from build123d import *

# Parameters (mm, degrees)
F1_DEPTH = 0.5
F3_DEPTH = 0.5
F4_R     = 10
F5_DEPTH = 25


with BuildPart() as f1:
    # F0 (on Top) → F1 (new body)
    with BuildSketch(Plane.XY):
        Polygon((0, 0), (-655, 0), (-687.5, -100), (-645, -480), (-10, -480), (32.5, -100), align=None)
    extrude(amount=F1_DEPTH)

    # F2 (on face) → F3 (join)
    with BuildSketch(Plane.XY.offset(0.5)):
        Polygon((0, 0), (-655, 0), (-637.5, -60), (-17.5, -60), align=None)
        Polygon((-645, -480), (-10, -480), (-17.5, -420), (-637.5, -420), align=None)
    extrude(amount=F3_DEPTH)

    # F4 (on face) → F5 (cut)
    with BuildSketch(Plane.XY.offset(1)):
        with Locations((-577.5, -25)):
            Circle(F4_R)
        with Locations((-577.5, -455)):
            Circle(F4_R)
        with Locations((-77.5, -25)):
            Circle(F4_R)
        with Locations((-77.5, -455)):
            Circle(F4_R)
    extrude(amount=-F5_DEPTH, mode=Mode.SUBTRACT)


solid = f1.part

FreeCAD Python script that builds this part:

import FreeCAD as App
import Part
import Sketcher


def add_polygon(sketch, points):
    """Adds a closed chain of lines whose ends are joined by coincident constraints."""
    first, n = sketch.GeometryCount, len(points)
    for a, b in zip(points, points[1:] + points[:1]):
        sketch.addGeometry(Part.LineSegment(App.Vector(*a, 0), App.Vector(*b, 0)), False)
    for i in range(n):
        sketch.addConstraint(Sketcher.Constraint("Coincident", first + i, 2, first + (i + 1) % n, 1))

doc = App.newDocument("Part")
body = doc.addObject("PartDesign::Body", "Body")

# Sketch on XY plane
sketch1 = body.newObject("Sketcher::SketchObject", "Sketch")
sketch1.AttachmentSupport = (doc.getObject("XY_Plane"), [""])
sketch1.MapMode = "FlatFace"
add_polygon(sketch1, [(0, 0), (-655, 0), (-687.5, -100), (-645, -480), (-10, -480), (32.5, -100)])  # lines 0-5
sketch1.addConstraint([
    Sketcher.Constraint("Horizontal", 0),
    Sketcher.Constraint("Horizontal", 3),
    Sketcher.Constraint("Coincident", 5, 2, -1, 1),
    Sketcher.Constraint("Horizontal", 1, 2, 4, 2),
    Sketcher.Constraint("Equal", 2, 4),
    Sketcher.Constraint("Equal", 1, 5),
    Sketcher.Constraint("DistanceX", 0, 2, 0, 1, 655.0),
    Sketcher.Constraint("DistanceX", 3, 1, 3, 2, 635.0),
    Sketcher.Constraint("DistanceY", 1, 2, -1, 1, 100.0),
    Sketcher.Constraint("DistanceY", 2, 2, -1, 1, 480.0),
    Sketcher.Constraint("DistanceX", 1, 2, 4, 2, 720.0),
])
pad1 = body.newObject("PartDesign::Pad", "Pad")
pad1.Profile = sketch1
pad1.Length = 0.5

# Sketch on XY plane
sketch2 = body.newObject("Sketcher::SketchObject", "Sketch001")
sketch2.AttachmentSupport = (doc.getObject("XY_Plane"), [""])
sketch2.MapMode = "FlatFace"
sketch2.AttachmentOffset = App.Placement(App.Vector(0, 0, 0.5), App.Rotation())
add_polygon(sketch2, [(0, 0), (-655, 0), (-637.5, -60), (-17.5, -60)])  # lines 0-3
add_polygon(sketch2, [(-645, -480), (-10, -480), (-17.5, -420), (-637.5, -420)])  # lines 4-7
sketch2.addConstraint([
    Sketcher.Constraint("Horizontal", 0),
    Sketcher.Constraint("Horizontal", 2),
    Sketcher.Constraint("Horizontal", 4),
    Sketcher.Constraint("Horizontal", 6),
    Sketcher.Constraint("Coincident", 3, 2, -1, 1),
    Sketcher.Constraint("Vertical", 2, 2, 5, 2),
    Sketcher.Constraint("Vertical", 1, 2, 6, 2),
    Sketcher.Constraint("Equal", 1, 3),
    Sketcher.Constraint("Equal", 5, 7),
    Sketcher.Constraint("DistanceX", 0, 2, 0, 1, 655.0),
    Sketcher.Constraint("DistanceX", 2, 1, 2, 2, 620.0),
    Sketcher.Constraint("DistanceX", 4, 1, 4, 2, 635.0),
    Sketcher.Constraint("DistanceY", 1, 2, -1, 1, 60.0),
    Sketcher.Constraint("DistanceY", 4, 2, -1, 1, 480.0),
    Sketcher.Constraint("DistanceY", 5, 2, -1, 1, 420.0),
])
pad2 = body.newObject("PartDesign::Pad", "Pad001")
pad2.Profile = sketch2
pad2.Length = 0.5

# Sketch on XY plane
sketch3 = body.newObject("Sketcher::SketchObject", "Sketch002")
sketch3.AttachmentSupport = (doc.getObject("XY_Plane"), [""])
sketch3.MapMode = "FlatFace"
sketch3.AttachmentOffset = App.Placement(App.Vector(0, 0, 1), App.Rotation())
sketch3.addGeometry([
    Part.Circle(App.Vector(-577.5, -25, 0), App.Vector(0, 0, 1), 10),
    Part.Circle(App.Vector(-577.5, -455, 0), App.Vector(0, 0, 1), 10),
    Part.Circle(App.Vector(-77.5, -25, 0), App.Vector(0, 0, 1), 10),
    Part.Circle(App.Vector(-77.5, -455, 0), App.Vector(0, 0, 1), 10),
], False)
sketch3.addConstraint([
    Sketcher.Constraint("Equal", 0, 1),
    Sketcher.Constraint("Equal", 1, 2),
    Sketcher.Constraint("Equal", 2, 3),
    Sketcher.Constraint("Horizontal", 0, 3, 2, 3),
    Sketcher.Constraint("Horizontal", 1, 3, 3, 3),
    Sketcher.Constraint("Vertical", 0, 3, 1, 3),
    Sketcher.Constraint("Vertical", 2, 3, 3, 3),
    Sketcher.Constraint("Diameter", 0, 20.0),
    Sketcher.Constraint("DistanceY", 0, 3, -1, 1, 25.0),
    Sketcher.Constraint("DistanceY", 1, 3, -1, 1, 455.0),
    Sketcher.Constraint("DistanceX", 0, 3, 2, 3, 500.0),
    Sketcher.Constraint("DistanceX", 0, 3, -1, 1, 577.5),
])
pocket1 = body.newObject("PartDesign::Pocket", "Pocket")
pocket1.Profile = sketch3
pocket1.Length = 25

doc.recompute()
